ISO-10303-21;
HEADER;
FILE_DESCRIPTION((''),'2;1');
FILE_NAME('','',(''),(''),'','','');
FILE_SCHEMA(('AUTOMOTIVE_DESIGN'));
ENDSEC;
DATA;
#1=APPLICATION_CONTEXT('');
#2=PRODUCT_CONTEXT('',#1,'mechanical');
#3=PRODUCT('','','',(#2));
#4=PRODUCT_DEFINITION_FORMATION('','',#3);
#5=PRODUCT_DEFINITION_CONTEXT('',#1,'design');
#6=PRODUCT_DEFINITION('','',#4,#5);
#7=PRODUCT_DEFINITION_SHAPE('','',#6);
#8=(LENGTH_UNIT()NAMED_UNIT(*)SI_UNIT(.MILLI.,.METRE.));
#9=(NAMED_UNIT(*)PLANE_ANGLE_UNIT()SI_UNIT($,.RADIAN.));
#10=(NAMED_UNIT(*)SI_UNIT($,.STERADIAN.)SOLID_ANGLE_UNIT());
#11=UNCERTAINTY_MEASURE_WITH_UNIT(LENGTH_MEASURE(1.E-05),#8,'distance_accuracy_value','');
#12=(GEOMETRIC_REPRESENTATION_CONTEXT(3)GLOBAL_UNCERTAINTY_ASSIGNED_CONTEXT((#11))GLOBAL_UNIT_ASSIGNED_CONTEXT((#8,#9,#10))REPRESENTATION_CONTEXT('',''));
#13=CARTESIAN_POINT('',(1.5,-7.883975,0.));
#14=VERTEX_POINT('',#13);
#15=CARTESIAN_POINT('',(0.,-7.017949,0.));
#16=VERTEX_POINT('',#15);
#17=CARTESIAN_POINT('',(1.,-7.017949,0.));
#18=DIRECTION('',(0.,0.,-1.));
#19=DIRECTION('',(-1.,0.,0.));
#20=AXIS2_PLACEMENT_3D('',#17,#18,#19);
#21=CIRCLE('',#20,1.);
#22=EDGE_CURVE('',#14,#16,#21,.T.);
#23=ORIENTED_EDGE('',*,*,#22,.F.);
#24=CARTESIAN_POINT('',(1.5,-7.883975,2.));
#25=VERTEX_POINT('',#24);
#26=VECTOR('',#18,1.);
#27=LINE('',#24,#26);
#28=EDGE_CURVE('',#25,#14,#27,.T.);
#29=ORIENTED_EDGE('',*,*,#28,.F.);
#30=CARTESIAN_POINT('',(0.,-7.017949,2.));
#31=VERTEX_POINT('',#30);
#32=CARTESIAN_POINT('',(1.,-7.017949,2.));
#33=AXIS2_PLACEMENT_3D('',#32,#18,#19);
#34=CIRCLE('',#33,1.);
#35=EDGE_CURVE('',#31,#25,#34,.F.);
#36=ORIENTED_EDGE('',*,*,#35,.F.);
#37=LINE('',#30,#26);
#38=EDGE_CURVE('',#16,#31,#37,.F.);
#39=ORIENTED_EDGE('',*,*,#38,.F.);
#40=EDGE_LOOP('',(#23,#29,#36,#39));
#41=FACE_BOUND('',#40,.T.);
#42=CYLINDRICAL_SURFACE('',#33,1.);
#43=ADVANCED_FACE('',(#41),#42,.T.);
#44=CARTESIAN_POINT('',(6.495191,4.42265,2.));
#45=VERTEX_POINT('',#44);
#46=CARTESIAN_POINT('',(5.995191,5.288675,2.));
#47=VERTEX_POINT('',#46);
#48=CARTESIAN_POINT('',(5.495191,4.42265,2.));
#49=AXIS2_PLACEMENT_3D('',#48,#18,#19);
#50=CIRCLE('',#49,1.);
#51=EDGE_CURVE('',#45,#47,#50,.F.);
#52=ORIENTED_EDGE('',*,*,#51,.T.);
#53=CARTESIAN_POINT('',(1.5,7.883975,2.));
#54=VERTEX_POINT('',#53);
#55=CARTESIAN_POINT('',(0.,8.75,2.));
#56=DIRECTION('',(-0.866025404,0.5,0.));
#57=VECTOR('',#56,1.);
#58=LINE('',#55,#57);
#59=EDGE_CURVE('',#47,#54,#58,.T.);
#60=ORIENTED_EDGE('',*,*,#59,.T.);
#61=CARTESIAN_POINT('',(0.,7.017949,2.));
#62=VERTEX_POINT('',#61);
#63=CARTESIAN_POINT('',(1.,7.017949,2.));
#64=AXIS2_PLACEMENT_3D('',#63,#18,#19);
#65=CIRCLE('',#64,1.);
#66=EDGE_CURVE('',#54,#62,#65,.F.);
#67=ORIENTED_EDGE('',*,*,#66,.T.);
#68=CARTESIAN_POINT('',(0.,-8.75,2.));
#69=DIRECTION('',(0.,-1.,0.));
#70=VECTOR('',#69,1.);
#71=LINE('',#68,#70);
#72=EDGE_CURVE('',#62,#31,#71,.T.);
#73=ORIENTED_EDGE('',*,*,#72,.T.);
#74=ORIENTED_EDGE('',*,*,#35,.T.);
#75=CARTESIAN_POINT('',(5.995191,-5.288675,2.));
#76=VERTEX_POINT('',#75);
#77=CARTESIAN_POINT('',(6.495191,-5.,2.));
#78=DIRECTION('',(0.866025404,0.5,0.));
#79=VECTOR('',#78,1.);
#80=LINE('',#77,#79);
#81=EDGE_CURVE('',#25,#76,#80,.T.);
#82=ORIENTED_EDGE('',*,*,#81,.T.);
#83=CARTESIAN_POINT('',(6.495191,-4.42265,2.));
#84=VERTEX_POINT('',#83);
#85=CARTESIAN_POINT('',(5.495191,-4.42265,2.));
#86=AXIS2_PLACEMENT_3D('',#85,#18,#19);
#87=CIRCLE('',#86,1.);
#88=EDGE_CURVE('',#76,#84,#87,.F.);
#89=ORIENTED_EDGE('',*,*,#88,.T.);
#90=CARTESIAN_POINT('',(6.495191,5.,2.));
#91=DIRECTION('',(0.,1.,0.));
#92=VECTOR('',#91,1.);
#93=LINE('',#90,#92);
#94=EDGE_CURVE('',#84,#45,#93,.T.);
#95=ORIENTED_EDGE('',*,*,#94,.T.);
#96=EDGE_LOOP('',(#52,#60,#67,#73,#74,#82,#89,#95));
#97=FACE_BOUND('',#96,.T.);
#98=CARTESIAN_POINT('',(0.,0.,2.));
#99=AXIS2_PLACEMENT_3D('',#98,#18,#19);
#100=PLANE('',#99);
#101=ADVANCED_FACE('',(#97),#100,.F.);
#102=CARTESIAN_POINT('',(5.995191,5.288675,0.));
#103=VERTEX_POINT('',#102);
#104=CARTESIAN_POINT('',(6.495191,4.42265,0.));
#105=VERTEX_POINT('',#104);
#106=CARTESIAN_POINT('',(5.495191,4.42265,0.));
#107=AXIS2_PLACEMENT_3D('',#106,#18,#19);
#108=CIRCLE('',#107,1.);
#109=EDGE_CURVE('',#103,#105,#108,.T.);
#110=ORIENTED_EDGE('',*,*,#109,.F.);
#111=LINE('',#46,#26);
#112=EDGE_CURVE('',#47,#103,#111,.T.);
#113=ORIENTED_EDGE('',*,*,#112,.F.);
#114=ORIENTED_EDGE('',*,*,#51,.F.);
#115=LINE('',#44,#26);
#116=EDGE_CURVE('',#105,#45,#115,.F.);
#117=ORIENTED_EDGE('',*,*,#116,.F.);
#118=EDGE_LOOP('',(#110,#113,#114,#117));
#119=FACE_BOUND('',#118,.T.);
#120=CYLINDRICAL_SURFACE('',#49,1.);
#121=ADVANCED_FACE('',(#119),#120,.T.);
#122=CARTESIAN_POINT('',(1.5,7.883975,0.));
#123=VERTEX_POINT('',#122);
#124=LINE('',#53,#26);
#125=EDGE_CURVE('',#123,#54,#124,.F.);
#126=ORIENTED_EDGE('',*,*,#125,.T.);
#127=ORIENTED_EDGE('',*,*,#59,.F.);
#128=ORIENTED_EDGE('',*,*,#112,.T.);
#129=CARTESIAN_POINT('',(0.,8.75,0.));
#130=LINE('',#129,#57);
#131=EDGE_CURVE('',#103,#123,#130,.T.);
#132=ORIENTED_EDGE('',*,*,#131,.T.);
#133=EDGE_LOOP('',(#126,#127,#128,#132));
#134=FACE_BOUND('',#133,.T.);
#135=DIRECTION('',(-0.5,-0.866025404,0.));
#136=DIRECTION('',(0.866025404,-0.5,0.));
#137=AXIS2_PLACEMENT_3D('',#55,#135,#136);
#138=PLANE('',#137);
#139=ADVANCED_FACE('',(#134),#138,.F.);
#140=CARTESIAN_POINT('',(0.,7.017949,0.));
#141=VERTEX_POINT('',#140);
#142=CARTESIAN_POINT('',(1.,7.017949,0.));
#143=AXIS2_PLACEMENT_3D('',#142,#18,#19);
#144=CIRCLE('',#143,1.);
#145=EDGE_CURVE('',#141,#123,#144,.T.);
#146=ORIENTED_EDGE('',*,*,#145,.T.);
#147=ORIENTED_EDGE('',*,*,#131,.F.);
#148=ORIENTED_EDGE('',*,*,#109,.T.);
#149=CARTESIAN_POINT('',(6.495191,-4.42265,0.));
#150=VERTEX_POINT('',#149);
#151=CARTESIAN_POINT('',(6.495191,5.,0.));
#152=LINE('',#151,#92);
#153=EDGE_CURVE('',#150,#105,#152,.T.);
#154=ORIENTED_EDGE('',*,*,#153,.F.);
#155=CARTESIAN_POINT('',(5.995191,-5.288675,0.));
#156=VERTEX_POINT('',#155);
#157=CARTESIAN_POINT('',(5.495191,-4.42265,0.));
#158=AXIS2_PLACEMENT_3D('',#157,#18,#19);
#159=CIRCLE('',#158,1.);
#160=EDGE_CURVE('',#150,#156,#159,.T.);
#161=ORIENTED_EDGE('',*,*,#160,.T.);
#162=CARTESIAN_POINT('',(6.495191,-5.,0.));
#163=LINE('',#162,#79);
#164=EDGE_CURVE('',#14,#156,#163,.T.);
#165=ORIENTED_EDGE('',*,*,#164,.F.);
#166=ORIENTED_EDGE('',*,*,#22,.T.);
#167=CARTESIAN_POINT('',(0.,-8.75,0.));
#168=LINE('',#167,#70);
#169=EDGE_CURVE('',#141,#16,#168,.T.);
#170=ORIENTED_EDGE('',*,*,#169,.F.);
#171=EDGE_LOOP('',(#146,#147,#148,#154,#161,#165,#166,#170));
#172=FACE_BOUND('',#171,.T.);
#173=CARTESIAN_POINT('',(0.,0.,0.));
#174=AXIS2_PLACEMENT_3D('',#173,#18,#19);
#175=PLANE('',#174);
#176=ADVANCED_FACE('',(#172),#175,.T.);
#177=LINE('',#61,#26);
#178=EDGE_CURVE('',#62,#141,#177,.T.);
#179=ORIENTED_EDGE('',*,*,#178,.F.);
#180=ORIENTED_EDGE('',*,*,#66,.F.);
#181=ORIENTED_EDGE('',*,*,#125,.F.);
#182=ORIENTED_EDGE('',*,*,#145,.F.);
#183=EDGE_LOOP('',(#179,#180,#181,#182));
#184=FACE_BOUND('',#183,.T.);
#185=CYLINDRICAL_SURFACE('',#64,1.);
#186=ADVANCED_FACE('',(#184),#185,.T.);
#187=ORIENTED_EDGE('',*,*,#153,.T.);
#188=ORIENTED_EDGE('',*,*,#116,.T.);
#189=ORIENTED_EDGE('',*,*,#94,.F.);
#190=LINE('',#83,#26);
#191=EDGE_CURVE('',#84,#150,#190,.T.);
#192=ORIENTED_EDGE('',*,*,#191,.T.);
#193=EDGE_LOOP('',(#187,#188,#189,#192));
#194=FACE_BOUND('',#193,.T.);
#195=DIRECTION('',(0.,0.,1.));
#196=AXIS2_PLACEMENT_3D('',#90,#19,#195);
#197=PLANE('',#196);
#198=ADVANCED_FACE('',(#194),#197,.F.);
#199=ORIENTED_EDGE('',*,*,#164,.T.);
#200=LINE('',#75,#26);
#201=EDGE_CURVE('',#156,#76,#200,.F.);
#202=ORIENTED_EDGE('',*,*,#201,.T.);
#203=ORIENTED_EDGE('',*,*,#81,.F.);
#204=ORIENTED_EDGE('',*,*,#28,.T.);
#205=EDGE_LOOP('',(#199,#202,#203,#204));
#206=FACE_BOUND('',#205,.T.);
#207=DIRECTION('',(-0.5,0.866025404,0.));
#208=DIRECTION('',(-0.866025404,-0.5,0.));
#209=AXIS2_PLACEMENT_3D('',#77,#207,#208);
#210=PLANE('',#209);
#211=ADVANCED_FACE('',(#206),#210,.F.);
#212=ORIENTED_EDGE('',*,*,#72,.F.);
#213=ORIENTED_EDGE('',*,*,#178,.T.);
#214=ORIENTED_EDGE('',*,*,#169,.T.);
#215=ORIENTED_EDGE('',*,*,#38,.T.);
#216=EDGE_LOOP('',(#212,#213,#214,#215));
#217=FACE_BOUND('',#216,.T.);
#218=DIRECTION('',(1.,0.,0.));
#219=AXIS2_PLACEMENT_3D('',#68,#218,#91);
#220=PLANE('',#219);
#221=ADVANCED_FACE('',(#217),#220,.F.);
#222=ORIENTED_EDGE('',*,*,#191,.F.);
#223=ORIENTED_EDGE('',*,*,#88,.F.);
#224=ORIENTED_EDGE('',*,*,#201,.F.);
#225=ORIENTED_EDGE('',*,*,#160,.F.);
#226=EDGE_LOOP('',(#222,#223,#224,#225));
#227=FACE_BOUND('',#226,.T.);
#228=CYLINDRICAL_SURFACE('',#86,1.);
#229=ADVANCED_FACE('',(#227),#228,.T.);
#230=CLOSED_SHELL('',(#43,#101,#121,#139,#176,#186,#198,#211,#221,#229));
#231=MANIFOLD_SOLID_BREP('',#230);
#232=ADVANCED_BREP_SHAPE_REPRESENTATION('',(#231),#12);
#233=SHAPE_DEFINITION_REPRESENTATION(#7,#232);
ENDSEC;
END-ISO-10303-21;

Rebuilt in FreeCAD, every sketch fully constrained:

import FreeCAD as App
import Part
import Sketcher

V = App.Vector
Q = App.Units.Quantity


def edges_at(feature, points):
    """Names of the edges that pass closest to the given points."""
    edges = feature.Shape.Edges
    near = lambda p: min(range(len(edges)), key=lambda i: edges[i].distToShape(Part.Vertex(*p))[0])
    return sorted({f"Edge{near(p) + 1}" for p in points})

doc = App.newDocument("Part")
body = doc.addObject("PartDesign::Body", "Body")

sketch1 = body.newObject("Sketcher::SketchObject", "Sketch")
sketch1.AttachmentSupport = (doc.getObject("XY_Plane"), [""])
sketch1.MapMode = "FlatFace"
sketch1.addGeometry([
    Part.LineSegment(V(0, 8.75, 0), V(0, -8.75, 0)),
    Part.LineSegment(V(0, -8.75, 0), V(6.495191, -5, 0)),
    Part.LineSegment(V(6.495191, -5, 0), V(6.495191, 5, 0)),
    Part.LineSegment(V(6.495191, 5, 0), V(0, 8.75, 0)),
], False)
sketch1.addConstraint([
    Sketcher.Constraint("Coincident", 0, 2, 1, 1),
    Sketcher.Constraint("Coincident", 1, 2, 2, 1),
    Sketcher.Constraint("Coincident", 2, 2, 3, 1),
    Sketcher.Constraint("Coincident", 3, 2, 0, 1),
    Sketcher.Constraint("Vertical", 0),
    Sketcher.Constraint("Vertical", 2),
    Sketcher.Constraint("Symmetric", 0, 2, 3, 2, -1, 1),
    Sketcher.Constraint("Equal", 1, 3),
    Sketcher.Constraint("DistanceY", 2, 1, 2, 2, Q("10 mm")),
    Sketcher.Constraint("Angle", 1, Q("30 deg")),
    Sketcher.Constraint("DistanceY", 0, 2, 0, 1, Q("17.5 mm")),
])
pad1 = body.newObject("PartDesign::Pad", "Pad")
pad1.Profile = sketch1
pad1.Length = 2
doc.recompute()

fillet = body.newObject("PartDesign::Fillet", "Fillet")
fillet.Base = (pad1, edges_at(pad1, [
    (0, -8.75, 1),
    (0, 8.75, 1),
    (6.495, 5, 1),
    (6.495, -5, 1),
]))
fillet.Radius = 1

doc.recompute()
